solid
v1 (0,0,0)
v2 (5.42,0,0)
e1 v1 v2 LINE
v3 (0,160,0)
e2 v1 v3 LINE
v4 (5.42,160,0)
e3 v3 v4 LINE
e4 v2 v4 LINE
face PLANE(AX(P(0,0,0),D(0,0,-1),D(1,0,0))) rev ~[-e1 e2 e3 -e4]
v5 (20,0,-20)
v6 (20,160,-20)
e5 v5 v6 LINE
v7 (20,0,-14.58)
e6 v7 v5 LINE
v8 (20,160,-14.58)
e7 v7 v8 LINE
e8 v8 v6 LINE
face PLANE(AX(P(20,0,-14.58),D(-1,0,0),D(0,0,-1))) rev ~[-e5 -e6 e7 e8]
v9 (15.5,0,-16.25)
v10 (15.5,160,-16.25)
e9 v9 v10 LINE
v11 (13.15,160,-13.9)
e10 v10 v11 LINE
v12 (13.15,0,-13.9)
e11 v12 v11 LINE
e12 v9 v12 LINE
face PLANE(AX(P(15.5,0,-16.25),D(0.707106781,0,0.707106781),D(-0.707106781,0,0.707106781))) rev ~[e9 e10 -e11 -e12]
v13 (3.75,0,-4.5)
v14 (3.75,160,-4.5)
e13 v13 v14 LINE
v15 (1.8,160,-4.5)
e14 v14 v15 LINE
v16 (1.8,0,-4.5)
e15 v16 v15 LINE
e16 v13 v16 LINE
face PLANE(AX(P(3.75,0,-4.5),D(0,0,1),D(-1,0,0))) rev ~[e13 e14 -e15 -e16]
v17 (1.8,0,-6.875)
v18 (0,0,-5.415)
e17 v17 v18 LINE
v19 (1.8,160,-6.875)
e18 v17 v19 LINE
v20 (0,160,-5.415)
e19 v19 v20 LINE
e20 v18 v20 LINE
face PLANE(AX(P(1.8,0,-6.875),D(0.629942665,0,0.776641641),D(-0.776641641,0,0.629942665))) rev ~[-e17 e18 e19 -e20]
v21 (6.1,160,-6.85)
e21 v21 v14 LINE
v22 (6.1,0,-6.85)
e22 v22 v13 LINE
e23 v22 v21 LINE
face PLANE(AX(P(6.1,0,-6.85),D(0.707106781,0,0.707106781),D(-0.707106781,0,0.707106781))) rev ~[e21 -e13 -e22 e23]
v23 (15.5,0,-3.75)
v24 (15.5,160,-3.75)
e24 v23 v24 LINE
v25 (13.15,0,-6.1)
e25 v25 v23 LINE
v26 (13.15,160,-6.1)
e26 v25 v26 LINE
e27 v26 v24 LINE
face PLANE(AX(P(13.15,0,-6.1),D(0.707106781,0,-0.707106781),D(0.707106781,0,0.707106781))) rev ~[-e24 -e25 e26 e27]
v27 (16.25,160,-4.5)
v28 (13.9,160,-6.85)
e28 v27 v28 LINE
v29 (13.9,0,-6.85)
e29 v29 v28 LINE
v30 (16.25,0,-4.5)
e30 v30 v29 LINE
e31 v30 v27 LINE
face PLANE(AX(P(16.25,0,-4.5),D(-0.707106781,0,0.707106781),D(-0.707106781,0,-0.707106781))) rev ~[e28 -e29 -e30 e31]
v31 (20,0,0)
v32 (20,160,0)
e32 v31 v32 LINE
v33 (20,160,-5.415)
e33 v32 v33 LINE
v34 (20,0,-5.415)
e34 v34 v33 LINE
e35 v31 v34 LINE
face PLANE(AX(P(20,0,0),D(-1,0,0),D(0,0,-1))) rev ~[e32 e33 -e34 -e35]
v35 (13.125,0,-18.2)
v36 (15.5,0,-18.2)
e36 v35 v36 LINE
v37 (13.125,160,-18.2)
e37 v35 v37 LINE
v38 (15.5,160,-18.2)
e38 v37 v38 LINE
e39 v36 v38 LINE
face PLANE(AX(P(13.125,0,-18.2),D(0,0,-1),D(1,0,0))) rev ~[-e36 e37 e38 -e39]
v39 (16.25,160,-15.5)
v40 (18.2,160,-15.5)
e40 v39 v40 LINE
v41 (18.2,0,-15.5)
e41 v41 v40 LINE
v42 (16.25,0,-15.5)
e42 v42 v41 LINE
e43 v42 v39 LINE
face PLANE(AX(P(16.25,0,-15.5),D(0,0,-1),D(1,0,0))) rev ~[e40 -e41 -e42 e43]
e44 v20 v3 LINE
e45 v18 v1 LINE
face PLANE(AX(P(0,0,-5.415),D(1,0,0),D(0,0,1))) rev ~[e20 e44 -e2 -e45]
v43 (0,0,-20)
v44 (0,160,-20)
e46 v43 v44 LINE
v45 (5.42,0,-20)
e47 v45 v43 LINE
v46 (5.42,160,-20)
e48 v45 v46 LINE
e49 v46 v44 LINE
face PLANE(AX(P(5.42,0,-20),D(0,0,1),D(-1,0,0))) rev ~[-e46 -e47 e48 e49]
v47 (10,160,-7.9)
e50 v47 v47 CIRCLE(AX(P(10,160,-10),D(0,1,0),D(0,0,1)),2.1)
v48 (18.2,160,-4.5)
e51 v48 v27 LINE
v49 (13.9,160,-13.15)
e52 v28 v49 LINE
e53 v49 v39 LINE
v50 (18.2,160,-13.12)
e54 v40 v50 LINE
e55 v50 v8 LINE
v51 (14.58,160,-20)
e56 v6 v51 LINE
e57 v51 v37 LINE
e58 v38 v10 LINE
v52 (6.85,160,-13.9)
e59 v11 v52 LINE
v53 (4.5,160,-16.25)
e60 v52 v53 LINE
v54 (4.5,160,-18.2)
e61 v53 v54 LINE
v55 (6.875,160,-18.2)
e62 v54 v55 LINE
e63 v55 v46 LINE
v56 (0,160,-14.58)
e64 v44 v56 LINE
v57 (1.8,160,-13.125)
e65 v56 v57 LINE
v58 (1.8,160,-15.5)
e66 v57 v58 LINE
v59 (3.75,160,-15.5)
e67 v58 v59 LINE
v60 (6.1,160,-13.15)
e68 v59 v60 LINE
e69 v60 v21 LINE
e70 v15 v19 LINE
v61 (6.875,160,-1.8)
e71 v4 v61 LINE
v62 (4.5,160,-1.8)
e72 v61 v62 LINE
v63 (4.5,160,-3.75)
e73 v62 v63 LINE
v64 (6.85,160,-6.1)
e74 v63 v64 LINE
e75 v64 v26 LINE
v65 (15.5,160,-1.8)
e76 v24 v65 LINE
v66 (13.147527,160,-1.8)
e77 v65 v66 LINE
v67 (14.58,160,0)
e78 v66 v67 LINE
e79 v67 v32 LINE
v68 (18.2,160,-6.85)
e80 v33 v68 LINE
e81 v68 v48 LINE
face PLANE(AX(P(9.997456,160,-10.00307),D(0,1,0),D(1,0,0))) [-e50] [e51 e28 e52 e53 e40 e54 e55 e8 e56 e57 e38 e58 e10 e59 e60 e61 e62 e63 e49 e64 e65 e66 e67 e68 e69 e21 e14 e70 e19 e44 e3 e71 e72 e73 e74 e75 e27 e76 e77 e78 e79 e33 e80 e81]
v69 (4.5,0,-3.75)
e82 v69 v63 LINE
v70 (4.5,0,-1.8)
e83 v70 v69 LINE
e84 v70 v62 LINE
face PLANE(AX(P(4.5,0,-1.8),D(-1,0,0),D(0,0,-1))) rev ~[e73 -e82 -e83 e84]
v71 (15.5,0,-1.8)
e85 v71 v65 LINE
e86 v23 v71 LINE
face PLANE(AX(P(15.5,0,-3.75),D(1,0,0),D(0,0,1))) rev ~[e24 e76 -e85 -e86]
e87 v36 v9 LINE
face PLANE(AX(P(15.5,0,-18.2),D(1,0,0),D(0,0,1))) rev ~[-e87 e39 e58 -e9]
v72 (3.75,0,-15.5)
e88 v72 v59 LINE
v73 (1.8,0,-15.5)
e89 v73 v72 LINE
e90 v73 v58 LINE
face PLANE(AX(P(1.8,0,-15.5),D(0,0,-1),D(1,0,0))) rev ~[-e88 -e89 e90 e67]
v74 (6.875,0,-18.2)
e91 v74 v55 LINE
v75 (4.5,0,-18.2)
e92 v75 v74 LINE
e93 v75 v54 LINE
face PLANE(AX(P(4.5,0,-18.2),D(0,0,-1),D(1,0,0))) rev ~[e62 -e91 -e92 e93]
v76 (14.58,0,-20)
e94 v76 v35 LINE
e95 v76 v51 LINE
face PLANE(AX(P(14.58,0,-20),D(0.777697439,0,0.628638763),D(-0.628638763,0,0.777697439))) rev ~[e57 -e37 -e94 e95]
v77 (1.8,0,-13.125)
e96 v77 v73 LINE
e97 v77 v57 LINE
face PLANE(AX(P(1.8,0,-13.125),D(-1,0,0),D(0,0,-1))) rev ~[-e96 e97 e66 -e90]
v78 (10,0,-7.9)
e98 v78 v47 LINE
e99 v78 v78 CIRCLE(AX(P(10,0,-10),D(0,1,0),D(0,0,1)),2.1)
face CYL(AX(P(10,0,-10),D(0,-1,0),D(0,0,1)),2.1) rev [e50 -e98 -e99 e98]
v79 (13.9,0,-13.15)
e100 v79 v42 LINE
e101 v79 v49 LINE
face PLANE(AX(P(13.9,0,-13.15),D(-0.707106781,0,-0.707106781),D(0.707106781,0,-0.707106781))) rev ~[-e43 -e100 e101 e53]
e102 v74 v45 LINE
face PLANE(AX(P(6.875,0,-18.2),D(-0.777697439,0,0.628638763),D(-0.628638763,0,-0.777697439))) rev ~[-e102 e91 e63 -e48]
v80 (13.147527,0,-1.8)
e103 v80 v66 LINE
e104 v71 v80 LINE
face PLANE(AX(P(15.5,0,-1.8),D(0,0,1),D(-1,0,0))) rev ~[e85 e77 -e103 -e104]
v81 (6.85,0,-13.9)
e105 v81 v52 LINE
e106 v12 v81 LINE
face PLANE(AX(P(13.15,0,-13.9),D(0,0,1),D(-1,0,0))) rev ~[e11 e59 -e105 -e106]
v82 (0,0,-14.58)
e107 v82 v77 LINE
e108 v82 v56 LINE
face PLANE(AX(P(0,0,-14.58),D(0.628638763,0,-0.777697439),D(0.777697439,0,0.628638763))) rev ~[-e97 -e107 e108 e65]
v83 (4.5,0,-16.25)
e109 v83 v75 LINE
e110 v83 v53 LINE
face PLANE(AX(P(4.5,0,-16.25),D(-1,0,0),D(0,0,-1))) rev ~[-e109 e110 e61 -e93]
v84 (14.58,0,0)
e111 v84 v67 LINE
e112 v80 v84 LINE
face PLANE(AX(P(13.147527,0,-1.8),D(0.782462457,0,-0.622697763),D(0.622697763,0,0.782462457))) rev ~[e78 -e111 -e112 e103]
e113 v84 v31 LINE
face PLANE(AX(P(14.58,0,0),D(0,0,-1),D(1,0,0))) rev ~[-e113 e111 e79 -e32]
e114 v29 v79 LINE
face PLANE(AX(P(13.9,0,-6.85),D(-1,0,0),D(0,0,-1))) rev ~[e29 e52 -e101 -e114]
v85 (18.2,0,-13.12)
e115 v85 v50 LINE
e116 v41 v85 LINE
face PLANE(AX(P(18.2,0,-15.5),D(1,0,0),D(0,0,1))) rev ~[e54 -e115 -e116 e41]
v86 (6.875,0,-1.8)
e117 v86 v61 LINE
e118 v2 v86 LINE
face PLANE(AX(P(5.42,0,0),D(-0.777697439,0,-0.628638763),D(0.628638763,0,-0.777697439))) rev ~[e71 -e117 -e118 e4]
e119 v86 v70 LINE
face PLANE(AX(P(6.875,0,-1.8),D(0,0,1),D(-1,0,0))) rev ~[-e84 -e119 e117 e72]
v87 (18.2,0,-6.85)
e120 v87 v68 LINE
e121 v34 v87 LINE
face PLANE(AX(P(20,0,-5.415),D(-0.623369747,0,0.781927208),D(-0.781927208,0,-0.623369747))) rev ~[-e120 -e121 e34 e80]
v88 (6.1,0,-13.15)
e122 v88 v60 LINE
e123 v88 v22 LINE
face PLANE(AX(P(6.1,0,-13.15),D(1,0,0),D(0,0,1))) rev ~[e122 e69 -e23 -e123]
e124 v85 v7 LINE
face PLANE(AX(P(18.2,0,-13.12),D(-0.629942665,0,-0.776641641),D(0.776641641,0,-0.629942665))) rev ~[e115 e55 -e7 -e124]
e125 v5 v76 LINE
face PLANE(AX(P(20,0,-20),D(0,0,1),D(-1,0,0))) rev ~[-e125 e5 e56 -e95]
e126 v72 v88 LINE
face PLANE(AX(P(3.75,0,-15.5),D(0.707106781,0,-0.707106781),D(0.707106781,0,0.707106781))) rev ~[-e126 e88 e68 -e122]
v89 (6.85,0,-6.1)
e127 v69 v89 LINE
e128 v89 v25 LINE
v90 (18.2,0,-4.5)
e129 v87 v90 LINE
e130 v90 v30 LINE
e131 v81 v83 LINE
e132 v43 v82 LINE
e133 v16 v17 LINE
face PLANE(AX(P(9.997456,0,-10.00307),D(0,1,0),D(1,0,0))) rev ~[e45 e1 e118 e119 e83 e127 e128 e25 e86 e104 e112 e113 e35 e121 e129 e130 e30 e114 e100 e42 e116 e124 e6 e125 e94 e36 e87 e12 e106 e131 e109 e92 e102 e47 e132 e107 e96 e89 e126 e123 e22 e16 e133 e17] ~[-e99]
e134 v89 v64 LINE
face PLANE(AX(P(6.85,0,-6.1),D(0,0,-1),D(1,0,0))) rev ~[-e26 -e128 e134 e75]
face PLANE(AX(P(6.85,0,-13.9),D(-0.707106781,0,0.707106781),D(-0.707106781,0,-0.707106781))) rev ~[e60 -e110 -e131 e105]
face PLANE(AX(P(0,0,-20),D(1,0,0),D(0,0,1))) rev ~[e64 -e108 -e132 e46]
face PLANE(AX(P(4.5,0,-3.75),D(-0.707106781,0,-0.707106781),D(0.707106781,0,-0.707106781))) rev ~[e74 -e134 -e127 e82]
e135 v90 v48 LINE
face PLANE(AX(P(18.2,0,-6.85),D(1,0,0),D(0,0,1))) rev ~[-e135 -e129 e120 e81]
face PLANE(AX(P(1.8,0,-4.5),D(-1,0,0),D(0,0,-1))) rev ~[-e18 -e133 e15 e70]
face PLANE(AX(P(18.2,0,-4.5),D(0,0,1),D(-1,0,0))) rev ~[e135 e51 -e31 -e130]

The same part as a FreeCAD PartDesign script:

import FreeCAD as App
import Part
import Sketcher

doc = App.newDocument("Part")
body = doc.addObject("PartDesign::Body", "Body")

# Sketch on XZ plane
sketch1 = body.newObject("Sketcher::SketchObject", "Sketch")
sketch1.AttachmentSupport = (doc.getObject("XZ_Plane"), [""])
sketch1.MapMode = "FlatFace"
sketch1.addGeometry([
    Part.LineSegment(App.Vector(0, -5.415, 0), App.Vector(0, 0, 0)),  # 0
    Part.LineSegment(App.Vector(0, 0, 0), App.Vector(5.42, 0, 0)),  # 1
    Part.LineSegment(App.Vector(5.42, 0, 0), App.Vector(6.875, -1.8, 0)),  # 2
    Part.LineSegment(App.Vector(6.875, -1.8, 0), App.Vector(4.5, -1.8, 0)),  # 3
    Part.LineSegment(App.Vector(4.5, -1.8, 0), App.Vector(4.5, -3.75, 0)),  # 4
    Part.LineSegment(App.Vector(4.5, -3.75, 0), App.Vector(6.85, -6.1, 0)),  # 5
    Part.LineSegment(App.Vector(6.85, -6.1, 0), App.Vector(13.15, -6.1, 0)),  # 6
    Part.LineSegment(App.Vector(13.15, -6.1, 0), App.Vector(15.5, -3.75, 0)),  # 7
    Part.LineSegment(App.Vector(15.5, -3.75, 0), App.Vector(15.5, -1.8, 0)),  # 8
    Part.LineSegment(App.Vector(15.5, -1.8, 0), App.Vector(13.147527, -1.8, 0)),  # 9
    Part.LineSegment(App.Vector(13.147527, -1.8, 0), App.Vector(14.58, 0, 0)),  # 10
    Part.LineSegment(App.Vector(14.58, 0, 0), App.Vector(20, 0, 0)),  # 11
    Part.LineSegment(App.Vector(20, 0, 0), App.Vector(20, -5.415, 0)),  # 12
    Part.LineSegment(App.Vector(20, -5.415, 0), App.Vector(18.2, -6.85, 0)),  # 13
    Part.LineSegment(App.Vector(18.2, -6.85, 0), App.Vector(18.2, -4.5, 0)),  # 14
    Part.LineSegment(App.Vector(18.2, -4.5, 0), App.Vector(16.25, -4.5, 0)),  # 15
    Part.LineSegment(App.Vector(16.25, -4.5, 0), App.Vector(13.9, -6.85, 0)),  # 16
    Part.LineSegment(App.Vector(13.9, -6.85, 0), App.Vector(13.9, -13.15, 0)),  # 17
    Part.LineSegment(App.Vector(13.9, -13.15, 0), App.Vector(16.25, -15.5, 0)),  # 18
    Part.LineSegment(App.Vector(16.25, -15.5, 0), App.Vector(18.2, -15.5, 0)),  # 19
    Part.LineSegment(App.Vector(18.2, -15.5, 0), App.Vector(18.2, -13.12, 0)),  # 20
    Part.LineSegment(App.Vector(18.2, -13.12, 0), App.Vector(20, -14.58, 0)),  # 21
    Part.LineSegment(App.Vector(20, -14.58, 0), App.Vector(20, -20, 0)),  # 22
    Part.LineSegment(App.Vector(20, -20, 0), App.Vector(14.58, -20, 0)),  # 23
    Part.LineSegment(App.Vector(14.58, -20, 0), App.Vector(13.125, -18.2, 0)),  # 24
    Part.LineSegment(App.Vector(13.125, -18.2, 0), App.Vector(15.5, -18.2, 0)),  # 25
    Part.LineSegment(App.Vector(15.5, -18.2, 0), App.Vector(15.5, -16.25, 0)),  # 26
    Part.LineSegment(App.Vector(15.5, -16.25, 0), App.Vector(13.15, -13.9, 0)),  # 27
    Part.LineSegment(App.Vector(13.15, -13.9, 0), App.Vector(6.85, -13.9, 0)),  # 28
    Part.LineSegment(App.Vector(6.85, -13.9, 0), App.Vector(4.5, -16.25, 0)),  # 29
    Part.LineSegment(App.Vector(4.5, -16.25, 0), App.Vector(4.5, -18.2, 0)),  # 30
    Part.LineSegment(App.Vector(4.5, -18.2, 0), App.Vector(6.875, -18.2, 0)),  # 31
    Part.LineSegment(App.Vector(6.875, -18.2, 0), App.Vector(5.42, -20, 0)),  # 32
    Part.LineSegment(App.Vector(5.42, -20, 0), App.Vector(0, -20, 0)),  # 33
    Part.LineSegment(App.Vector(0, -20, 0), App.Vector(0, -14.58, 0)),  # 34
    Part.LineSegment(App.Vector(0, -14.58, 0), App.Vector(1.8, -13.125, 0)),  # 35
    Part.LineSegment(App.Vector(1.8, -13.125, 0), App.Vector(1.8, -15.5, 0)),  # 36
    Part.LineSegment(App.Vector(1.8, -15.5, 0), App.Vector(3.75, -15.5, 0)),  # 37
    Part.LineSegment(App.Vector(3.75, -15.5, 0), App.Vector(6.1, -13.15, 0)),  # 38
    Part.LineSegment(App.Vector(6.1, -13.15, 0), App.Vector(6.1, -6.85, 0)),  # 39
    Part.LineSegment(App.Vector(6.1, -6.85, 0), App.Vector(3.75, -4.5, 0)),  # 40
    Part.LineSegment(App.Vector(3.75, -4.5, 0), App.Vector(1.8, -4.5, 0)),  # 41
    Part.LineSegment(App.Vector(1.8, -4.5, 0), App.Vector(1.8, -6.875, 0)),  # 42
    Part.LineSegment(App.Vector(1.8, -6.875, 0), App.Vector(0, -5.415, 0)),  # 43
    Part.Circle(App.Vector(10, -10, 0), App.Vector(0, 0, 1), 2.1),  # 44
], False)
sketch1.addConstraint([
    Sketcher.Constraint("Coincident", 0, 2, 1, 1),
    Sketcher.Constraint("Coincident", 1, 2, 2, 1),
    Sketcher.Constraint("Coincident", 2, 2, 3, 1),
    Sketcher.Constraint("Coincident", 3, 2, 4, 1),
    Sketcher.Constraint("Coincident", 4, 2, 5, 1),
    Sketcher.Constraint("Coincident", 5, 2, 6, 1),
    Sketcher.Constraint("Coincident", 6, 2, 7, 1),
    Sketcher.Constraint("Coincident", 7, 2, 8, 1),
    Sketcher.Constraint("Coincident", 8, 2, 9, 1),
    Sketcher.Constraint("Coincident", 9, 2, 10, 1),
    Sketcher.Constraint("Coincident", 10, 2, 11, 1),
    Sketcher.Constraint("Coincident", 11, 2, 12, 1),
    Sketcher.Constraint("Coincident", 12, 2, 13, 1),
    Sketcher.Constraint("Coincident", 13, 2, 14, 1),
    Sketcher.Constraint("Coincident", 14, 2, 15, 1),
    Sketcher.Constraint("Coincident", 15, 2, 16, 1),
    Sketcher.Constraint("Coincident", 16, 2, 17, 1),
    Sketcher.Constraint("Coincident", 17, 2, 18, 1),
    Sketcher.Constraint("Coincident", 18, 2, 19, 1),
    Sketcher.Constraint("Coincident", 19, 2, 20, 1),
    Sketcher.Constraint("Coincident", 20, 2, 21, 1),
    Sketcher.Constraint("Coincident", 21, 2, 22, 1),
    Sketcher.Constraint("Coincident", 22, 2, 23, 1),
    Sketcher.Constraint("Coincident", 23, 2, 24, 1),
    Sketcher.Constraint("Coincident", 24, 2, 25, 1),
    Sketcher.Constraint("Coincident", 25, 2, 26, 1),
    Sketcher.Constraint("Coincident", 26, 2, 27, 1),
    Sketcher.Constraint("Coincident", 27, 2, 28, 1),
    Sketcher.Constraint("Coincident", 28, 2, 29, 1),
    Sketcher.Constraint("Coincident", 29, 2, 30, 1),
    Sketcher.Constraint("Coincident", 30, 2, 31, 1),
    Sketcher.Constraint("Coincident", 31, 2, 32, 1),
    Sketcher.Constraint("Coincident", 32, 2, 33, 1),
    Sketcher.Constraint("Coincident", 33, 2, 34, 1),
    Sketcher.Constraint("Coincident", 34, 2, 35, 1),
    Sketcher.Constraint("Coincident", 35, 2, 36, 1),
    Sketcher.Constraint("Coincident", 36, 2, 37, 1),
    Sketcher.Constraint("Coincident", 37, 2, 38, 1),
    Sketcher.Constraint("Coincident", 38, 2, 39, 1),
    Sketcher.Constraint("Coincident", 39, 2, 40, 1),
    Sketcher.Constraint("Coincident", 40, 2, 41, 1),
    Sketcher.Constraint("Coincident", 41, 2, 42, 1),
    Sketcher.Constraint("Coincident", 42, 2, 43, 1),
    Sketcher.Constraint("Coincident", 43, 2, 0, 1),
    Sketcher.Constraint("Vertical", 0),
    Sketcher.Constraint("Horizontal", 1),
    Sketcher.Constraint("Horizontal", 3),
    Sketcher.Constraint("Vertical", 4),
    Sketcher.Constraint("Horizontal", 6),
    Sketcher.Constraint("Vertical", 8),
    Sketcher.Constraint("Horizontal", 9),
    Sketcher.Constraint("Horizontal", 11),
    Sketcher.Constraint("Vertical", 12),
    Sketcher.Constraint("Vertical", 14),
    Sketcher.Constraint("Horizontal", 15),
    Sketcher.Constraint("Vertical", 17),
    Sketcher.Constraint("Horizontal", 19),
    Sketcher.Constraint("Vertical", 20),
    Sketcher.Constraint("Vertical", 22),
    Sketcher.Constraint("Horizontal", 23),
    Sketcher.Constraint("Horizontal", 25),
    Sketcher.Constraint("Vertical", 26),
    Sketcher.Constraint("Horizontal", 28),
    Sketcher.Constraint("Vertical", 30),
    Sketcher.Constraint("Horizontal", 31),
    Sketcher.Constraint("Horizontal", 33),
    Sketcher.Constraint("Vertical", 34),
    Sketcher.Constraint("Vertical", 36),
    Sketcher.Constraint("Horizontal", 37),
    Sketcher.Constraint("Vertical", 39),
    Sketcher.Constraint("Horizontal", 41),
    Sketcher.Constraint("Vertical", 42),
    Sketcher.Constraint("Coincident", 0, 2, -1, 1),
    Sketcher.Constraint("PointOnObject", 10, 2, -1),
    Sketcher.Constraint("PointOnObject", 33, 2, -2),
    Sketcher.Constraint("Perpendicular", 5, 7),
    Sketcher.Constraint("Parallel", 7, 16),
    Sketcher.Constraint("Perpendicular", 16, 18),
    Sketcher.Constraint("Parallel", 2, 24),
    Sketcher.Constraint("Parallel", 18, 27),
    Sketcher.Constraint("Perpendicular", 27, 29),
    Sketcher.Constraint("Perpendicular", 24, 35),
    Sketcher.Constraint("Parallel", 29, 38),
    Sketcher.Constraint("Perpendicular", 38, 40),
    Sketcher.Constraint("Parallel", 21, 43),
    Sketcher.Constraint("Horizontal", 4, 2, 7, 2),
    Sketcher.Constraint("Horizontal", 3, 2, 8, 2),
    Sketcher.Constraint("Horizontal", 13, 2, 16, 2),
    Sketcher.Constraint("Horizontal", 26, 2, 29, 2),
    Sketcher.Constraint("Horizontal", 25, 2, 30, 2),
    Sketcher.Constraint("Horizontal", 23, 2, 32, 2),
    Sketcher.Constraint("Horizontal", 21, 2, 34, 2),
    Sketcher.Constraint("Horizontal", 19, 2, 36, 2),
    Sketcher.Constraint("Horizontal", 17, 2, 38, 2),
    Sketcher.Constraint("Horizontal", 16, 2, 39, 2),
    Sketcher.Constraint("Horizontal", 15, 2, 40, 2),
    Sketcher.Constraint("Horizontal", 12, 2, 43, 2),
    Sketcher.Constraint("Vertical", 15, 2, 18, 2),
    Sketcher.Constraint("Vertical", 14, 2, 19, 2),
    Sketcher.Constraint("Vertical", 12, 2, 21, 2),
    Sketcher.Constraint("Vertical", 10, 2, 23, 2),
    Sketcher.Constraint("Vertical", 8, 2, 25, 2),
    Sketcher.Constraint("Vertical", 6, 2, 27, 2),
    Sketcher.Constraint("Vertical", 5, 2, 28, 2),
    Sketcher.Constraint("Vertical", 4, 2, 29, 2),
    Sketcher.Constraint("Vertical", 2, 2, 31, 2),
    Sketcher.Constraint("Vertical", 1, 2, 32, 2),
    Sketcher.Constraint("Vertical", 36, 2, 41, 2),
    Sketcher.Constraint("Equal", 1, 11),
    Sketcher.Constraint("Equal", 3, 25),
    Sketcher.Constraint("Equal", 19, 37),
    Sketcher.Constraint("Equal", 41, 4),
    Sketcher.Constraint("Equal", 28, 17),
    Sketcher.Constraint("Equal", 33, 22),
    Sketcher.Constraint("Equal", 8, 26),
    Sketcher.Constraint("Equal", 31, 36),
    Sketcher.Constraint("Equal", 36, 42),
    Sketcher.Constraint("Equal", 7, 16),
    Sketcher.Constraint("Equal", 2, 24),
    Sketcher.Constraint("Equal", 32, 35),
    Sketcher.Constraint("Equal", 21, 43),
    Sketcher.Constraint("Diameter", 44, 4.2),
    Sketcher.Constraint("DistanceX", 6, 1, 6, 2, 6.3),
    Sketcher.Constraint("DistanceX", -1, 1, 44, 3, 10.0),
    Sketcher.Constraint("DistanceY", 44, 3, -1, 1, 10.0),
    Sketcher.Constraint("DistanceX", -1, 1, 11, 2, 20.0),
    Sketcher.Constraint("DistanceY", 22, 2, -1, 1, 20.0),
    Sketcher.Constraint("DistanceX", 1, 1, 1, 2, 5.42),
    Sketcher.Constraint("DistanceX", 15, 2, 15, 1, 1.95),
    Sketcher.Constraint("DistanceY", 14, 1, 14, 2, 2.35),
    Sketcher.Constraint("DistanceY", 20, 1, 20, 2, 2.38),
    Sketcher.Constraint("DistanceY", 2, 2, -1, 1, 1.8),
    Sketcher.Constraint("DistanceX", 3, 2, 3, 1, 2.375),
    Sketcher.Constraint("Distance", 10, 2.30043),
])
pad1 = body.newObject("PartDesign::Pad", "Pad")
pad1.Profile = sketch1
pad1.Length = 160
pad1.Reversed = True

doc.recompute()
